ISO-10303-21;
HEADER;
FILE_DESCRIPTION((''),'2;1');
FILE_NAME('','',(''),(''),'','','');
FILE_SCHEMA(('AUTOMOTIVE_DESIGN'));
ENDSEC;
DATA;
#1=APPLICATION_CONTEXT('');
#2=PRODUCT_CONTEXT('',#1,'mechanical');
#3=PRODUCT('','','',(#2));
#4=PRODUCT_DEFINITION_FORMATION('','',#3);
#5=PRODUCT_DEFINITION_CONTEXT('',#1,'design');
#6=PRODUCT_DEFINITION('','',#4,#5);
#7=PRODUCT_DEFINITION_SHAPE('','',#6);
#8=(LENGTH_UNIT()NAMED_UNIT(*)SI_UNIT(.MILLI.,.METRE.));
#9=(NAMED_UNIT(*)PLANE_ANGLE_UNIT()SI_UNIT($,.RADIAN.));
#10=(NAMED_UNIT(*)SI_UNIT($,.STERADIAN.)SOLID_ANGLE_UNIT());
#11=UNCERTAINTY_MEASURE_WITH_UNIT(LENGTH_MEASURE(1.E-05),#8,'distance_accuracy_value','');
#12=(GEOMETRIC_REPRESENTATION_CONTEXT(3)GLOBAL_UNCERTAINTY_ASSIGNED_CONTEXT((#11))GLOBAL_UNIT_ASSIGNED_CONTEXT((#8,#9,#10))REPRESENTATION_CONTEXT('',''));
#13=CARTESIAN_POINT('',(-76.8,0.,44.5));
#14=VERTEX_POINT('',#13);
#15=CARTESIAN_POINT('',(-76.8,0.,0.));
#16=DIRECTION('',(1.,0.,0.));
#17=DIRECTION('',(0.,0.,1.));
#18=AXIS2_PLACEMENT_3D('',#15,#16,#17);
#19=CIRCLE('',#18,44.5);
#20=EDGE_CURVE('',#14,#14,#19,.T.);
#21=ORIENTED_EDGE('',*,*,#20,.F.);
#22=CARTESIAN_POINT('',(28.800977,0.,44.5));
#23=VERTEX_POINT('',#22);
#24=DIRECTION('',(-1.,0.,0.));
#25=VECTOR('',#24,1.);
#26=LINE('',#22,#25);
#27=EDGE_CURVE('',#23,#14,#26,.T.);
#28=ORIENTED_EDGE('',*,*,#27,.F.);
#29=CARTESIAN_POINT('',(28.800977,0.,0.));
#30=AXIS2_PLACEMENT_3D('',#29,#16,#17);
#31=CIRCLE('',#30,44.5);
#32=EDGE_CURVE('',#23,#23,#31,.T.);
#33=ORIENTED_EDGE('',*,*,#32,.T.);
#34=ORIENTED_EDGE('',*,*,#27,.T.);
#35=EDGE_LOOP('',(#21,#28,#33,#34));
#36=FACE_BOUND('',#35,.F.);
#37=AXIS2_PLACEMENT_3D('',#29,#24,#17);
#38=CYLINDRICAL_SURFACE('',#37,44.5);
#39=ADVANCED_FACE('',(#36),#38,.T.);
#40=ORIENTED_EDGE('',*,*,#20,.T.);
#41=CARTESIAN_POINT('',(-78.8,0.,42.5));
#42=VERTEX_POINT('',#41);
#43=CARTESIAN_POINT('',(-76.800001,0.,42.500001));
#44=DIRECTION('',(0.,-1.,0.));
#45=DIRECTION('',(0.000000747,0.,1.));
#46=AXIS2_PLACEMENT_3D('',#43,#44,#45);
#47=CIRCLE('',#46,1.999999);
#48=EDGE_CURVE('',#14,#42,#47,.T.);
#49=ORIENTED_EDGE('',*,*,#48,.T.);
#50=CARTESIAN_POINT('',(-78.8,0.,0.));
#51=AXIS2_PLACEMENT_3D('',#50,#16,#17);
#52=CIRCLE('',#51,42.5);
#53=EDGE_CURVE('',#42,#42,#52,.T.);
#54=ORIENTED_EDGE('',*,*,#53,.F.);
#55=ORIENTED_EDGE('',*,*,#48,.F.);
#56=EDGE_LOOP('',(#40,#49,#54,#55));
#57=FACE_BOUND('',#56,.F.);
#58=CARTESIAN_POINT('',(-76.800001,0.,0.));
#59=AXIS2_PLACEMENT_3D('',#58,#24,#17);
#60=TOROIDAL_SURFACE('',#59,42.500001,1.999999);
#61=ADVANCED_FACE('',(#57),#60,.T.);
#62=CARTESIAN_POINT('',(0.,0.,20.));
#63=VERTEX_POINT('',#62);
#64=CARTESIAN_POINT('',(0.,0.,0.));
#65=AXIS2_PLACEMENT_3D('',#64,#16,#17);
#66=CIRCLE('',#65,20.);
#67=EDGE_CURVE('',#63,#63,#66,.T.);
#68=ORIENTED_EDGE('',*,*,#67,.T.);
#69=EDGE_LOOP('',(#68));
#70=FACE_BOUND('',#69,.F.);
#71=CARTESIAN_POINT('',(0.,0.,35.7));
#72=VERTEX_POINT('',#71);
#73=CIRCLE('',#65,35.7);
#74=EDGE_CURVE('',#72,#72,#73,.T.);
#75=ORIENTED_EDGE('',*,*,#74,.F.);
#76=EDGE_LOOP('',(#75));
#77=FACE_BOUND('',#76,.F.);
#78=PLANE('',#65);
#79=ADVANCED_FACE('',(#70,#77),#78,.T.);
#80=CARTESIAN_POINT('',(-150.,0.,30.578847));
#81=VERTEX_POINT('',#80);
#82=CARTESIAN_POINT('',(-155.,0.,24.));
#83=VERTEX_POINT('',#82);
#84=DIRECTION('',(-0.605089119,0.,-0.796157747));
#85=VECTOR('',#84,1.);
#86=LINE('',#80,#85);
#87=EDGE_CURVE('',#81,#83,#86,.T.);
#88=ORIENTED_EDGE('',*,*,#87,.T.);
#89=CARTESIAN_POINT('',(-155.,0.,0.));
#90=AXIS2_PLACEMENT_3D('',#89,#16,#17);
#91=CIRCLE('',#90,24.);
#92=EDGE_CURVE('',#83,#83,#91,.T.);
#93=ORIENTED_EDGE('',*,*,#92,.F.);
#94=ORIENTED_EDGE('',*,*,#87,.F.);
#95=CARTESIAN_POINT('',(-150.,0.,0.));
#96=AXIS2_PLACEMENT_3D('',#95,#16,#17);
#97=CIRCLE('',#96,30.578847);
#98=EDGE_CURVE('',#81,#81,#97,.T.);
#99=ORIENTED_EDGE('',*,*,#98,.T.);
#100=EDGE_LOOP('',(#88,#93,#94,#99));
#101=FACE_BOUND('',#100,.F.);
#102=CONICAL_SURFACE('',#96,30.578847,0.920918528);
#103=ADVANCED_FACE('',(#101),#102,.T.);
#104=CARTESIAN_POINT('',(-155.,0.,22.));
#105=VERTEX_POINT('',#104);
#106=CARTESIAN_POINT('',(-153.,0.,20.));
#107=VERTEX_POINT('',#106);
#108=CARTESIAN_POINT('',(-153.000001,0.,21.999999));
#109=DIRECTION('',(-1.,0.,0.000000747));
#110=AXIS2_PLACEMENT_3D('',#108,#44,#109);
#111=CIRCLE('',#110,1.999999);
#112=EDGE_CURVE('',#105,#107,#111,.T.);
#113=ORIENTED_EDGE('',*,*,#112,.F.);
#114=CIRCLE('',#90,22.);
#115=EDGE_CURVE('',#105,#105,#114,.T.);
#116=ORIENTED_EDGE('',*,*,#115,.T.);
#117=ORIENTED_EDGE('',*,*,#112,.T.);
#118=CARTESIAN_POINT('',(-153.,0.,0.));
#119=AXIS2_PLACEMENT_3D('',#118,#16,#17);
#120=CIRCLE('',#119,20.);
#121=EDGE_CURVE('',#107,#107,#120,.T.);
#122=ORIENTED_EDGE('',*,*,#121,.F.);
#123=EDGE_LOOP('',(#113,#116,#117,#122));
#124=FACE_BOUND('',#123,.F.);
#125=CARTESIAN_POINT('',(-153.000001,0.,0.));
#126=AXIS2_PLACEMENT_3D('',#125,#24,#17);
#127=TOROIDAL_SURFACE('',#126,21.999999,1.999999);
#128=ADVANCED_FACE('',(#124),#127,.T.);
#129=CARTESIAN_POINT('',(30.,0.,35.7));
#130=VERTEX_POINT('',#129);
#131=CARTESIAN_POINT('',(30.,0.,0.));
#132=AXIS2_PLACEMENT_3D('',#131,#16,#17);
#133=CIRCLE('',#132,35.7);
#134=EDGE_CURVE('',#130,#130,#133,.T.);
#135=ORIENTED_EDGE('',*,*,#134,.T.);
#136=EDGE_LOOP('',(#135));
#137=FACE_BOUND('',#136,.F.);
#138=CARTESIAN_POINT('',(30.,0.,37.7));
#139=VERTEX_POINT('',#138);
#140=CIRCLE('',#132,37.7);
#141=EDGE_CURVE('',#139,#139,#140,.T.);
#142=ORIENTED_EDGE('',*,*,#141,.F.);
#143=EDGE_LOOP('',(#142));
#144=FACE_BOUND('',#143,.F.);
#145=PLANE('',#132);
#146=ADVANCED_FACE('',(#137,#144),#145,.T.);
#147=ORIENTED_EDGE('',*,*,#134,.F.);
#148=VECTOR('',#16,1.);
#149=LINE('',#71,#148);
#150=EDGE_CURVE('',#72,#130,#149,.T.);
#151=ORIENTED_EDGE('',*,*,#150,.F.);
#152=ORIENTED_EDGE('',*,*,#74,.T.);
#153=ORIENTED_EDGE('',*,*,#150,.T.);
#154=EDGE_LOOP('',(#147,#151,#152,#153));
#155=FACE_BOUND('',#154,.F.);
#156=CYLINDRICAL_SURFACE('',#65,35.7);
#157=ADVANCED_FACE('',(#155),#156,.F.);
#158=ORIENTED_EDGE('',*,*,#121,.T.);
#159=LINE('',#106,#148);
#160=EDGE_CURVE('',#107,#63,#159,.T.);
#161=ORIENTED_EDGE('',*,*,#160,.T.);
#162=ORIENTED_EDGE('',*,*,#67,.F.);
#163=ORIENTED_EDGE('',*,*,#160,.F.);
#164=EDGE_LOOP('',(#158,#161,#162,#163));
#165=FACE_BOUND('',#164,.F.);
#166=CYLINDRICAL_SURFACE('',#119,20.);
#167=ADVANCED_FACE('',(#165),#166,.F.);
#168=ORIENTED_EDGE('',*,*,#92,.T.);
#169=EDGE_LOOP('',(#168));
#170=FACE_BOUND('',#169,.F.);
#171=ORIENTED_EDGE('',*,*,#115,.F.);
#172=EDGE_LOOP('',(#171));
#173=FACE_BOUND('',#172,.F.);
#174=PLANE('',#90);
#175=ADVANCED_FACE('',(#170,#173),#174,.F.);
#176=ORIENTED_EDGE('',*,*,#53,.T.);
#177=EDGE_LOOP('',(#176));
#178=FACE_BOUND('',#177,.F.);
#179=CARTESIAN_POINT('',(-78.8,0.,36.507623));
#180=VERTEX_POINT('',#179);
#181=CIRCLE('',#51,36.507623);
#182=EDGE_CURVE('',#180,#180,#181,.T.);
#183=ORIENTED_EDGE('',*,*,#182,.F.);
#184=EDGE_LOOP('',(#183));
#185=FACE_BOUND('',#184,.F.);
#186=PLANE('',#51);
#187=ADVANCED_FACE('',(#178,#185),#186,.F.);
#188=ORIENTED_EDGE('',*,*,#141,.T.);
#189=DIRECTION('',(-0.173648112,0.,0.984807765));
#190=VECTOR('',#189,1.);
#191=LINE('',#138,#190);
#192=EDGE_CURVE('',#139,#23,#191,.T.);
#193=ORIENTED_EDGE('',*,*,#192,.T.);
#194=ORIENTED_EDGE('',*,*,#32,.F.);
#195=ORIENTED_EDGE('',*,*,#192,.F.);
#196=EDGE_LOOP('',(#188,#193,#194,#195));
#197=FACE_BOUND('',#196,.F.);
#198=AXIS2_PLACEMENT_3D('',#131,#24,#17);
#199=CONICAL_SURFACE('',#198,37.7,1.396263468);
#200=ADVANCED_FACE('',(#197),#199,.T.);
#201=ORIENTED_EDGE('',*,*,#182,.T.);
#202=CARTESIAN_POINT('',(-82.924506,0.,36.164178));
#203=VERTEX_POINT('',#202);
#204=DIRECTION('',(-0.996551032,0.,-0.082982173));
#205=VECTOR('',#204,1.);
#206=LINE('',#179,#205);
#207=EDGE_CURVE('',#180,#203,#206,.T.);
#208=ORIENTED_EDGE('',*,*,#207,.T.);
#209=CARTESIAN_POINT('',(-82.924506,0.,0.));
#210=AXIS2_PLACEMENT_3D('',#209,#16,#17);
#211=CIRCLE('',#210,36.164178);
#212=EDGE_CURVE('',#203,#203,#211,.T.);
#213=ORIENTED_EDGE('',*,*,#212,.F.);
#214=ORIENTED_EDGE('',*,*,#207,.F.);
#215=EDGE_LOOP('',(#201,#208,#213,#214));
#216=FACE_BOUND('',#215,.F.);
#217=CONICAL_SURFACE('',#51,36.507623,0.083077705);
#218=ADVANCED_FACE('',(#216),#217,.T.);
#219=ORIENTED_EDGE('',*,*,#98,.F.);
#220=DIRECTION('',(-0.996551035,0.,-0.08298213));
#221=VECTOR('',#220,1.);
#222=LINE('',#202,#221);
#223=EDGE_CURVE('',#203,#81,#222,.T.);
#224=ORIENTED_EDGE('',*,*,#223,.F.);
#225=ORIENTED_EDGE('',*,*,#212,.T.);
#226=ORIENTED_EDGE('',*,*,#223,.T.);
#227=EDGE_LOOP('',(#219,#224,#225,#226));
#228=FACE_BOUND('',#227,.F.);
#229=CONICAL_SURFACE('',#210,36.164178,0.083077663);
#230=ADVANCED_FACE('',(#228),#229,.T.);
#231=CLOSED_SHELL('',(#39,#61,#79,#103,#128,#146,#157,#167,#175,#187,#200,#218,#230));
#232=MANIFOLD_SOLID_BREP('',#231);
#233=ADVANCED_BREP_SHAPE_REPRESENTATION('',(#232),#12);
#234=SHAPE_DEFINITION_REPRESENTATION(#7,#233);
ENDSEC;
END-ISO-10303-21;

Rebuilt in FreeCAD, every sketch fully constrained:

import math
import FreeCAD as App
import Part
import Sketcher

V = App.Vector
Q = App.Units.Quantity

doc = App.newDocument("Part")
body = doc.addObject("PartDesign::Body", "Body")

# Sketch on XZ plane
sketch1 = doc.addObject("Sketcher::SketchObject", "Sketch")
body.addObject(sketch1)
sketch1.AttachmentSupport = (doc.XZ_Plane, [""])
sketch1.MapMode = "FlatFace"
sketch1.addGeometry([
    Part.LineSegment(V(-153, 20, 0), V(0, 20, 0)),  # 0
    Part.LineSegment(V(0, 20, 0), V(0, 35.7, 0)),  # 1
    Part.LineSegment(V(0, 35.7, 0), V(30, 35.7, 0)),  # 2
    Part.LineSegment(V(30, 35.7, 0), V(30, 37.7, 0)),  # 3
    Part.LineSegment(V(30, 37.7, 0), V(28.800977, 44.5, 0)),  # 4
    Part.LineSegment(V(28.800977, 44.5, 0), V(-76.8, 44.5, 0)),  # 5
    Part.ArcOfCircle(Part.Circle(V(-76.800001, 42.500001, 0), V(0, 0, 1), 1.999999), math.radians(89.999957), math.radians(180.000043)),  # 6
    Part.LineSegment(V(-78.8, 42.5, 0), V(-78.8, 36.507623, 0)),  # 7
    Part.LineSegment(V(-78.8, 36.507623, 0), V(-82.924506, 36.164178, 0)),  # 8
    Part.LineSegment(V(-82.924506, 36.164178, 0), V(-150, 30.578847, 0)),  # 9
    Part.LineSegment(V(-150, 30.578847, 0), V(-155, 24, 0)),  # 10
    Part.LineSegment(V(-155, 24, 0), V(-155, 22, 0)),  # 11
    Part.ArcOfCircle(Part.Circle(V(-153.000001, 21.999999, 0), V(0, 0, 1), 1.999999), math.radians(179.999957), math.radians(270.000043)),  # 12
], False)
sketch1.addConstraint([
    Sketcher.Constraint("Coincident", 0, 2, 1, 1),
    Sketcher.Constraint("Coincident", 1, 2, 2, 1),
    Sketcher.Constraint("Coincident", 2, 2, 3, 1),
    Sketcher.Constraint("Coincident", 3, 2, 4, 1),
    Sketcher.Constraint("Coincident", 4, 2, 5, 1),
    Sketcher.Constraint("Tangent", 5, 2, 6, 1),
    Sketcher.Constraint("Tangent", 6, 2, 7, 1),
    Sketcher.Constraint("Coincident", 7, 2, 8, 1),
    Sketcher.Constraint("Coincident", 8, 2, 9, 1),
    Sketcher.Constraint("Coincident", 9, 2, 10, 1),
    Sketcher.Constraint("Coincident", 10, 2, 11, 1),
    Sketcher.Constraint("Tangent", 11, 2, 12, 1),
    Sketcher.Constraint("Tangent", 12, 2, 0, 1),
    Sketcher.Constraint("Horizontal", 0),
    Sketcher.Constraint("Vertical", 1),
    Sketcher.Constraint("Horizontal", 2),
    Sketcher.Constraint("Vertical", 3),
    Sketcher.Constraint("Horizontal", 5),
    Sketcher.Constraint("Vertical", 7),
    Sketcher.Constraint("Vertical", 11),
    Sketcher.Constraint("Equal", 6, 12),
    Sketcher.Constraint("PointOnObject", 0, 2, -2),
    Sketcher.Constraint("Parallel", 8, 9),
    Sketcher.Constraint("Equal", 3, 11),
    Sketcher.Constraint("Radius", 6, Q("1.999999 mm")),
    Sketcher.Constraint("DistanceX", 0, 1, 0, 2, Q("153 mm")),
    Sketcher.Constraint("DistanceX", 2, 1, 2, 2, Q("30 mm")),
    Sketcher.Constraint("DistanceY", 3, 1, 3, 2, Q("2 mm")),
    Sketcher.Constraint("Angle", 4, Q("99.999996 deg")),
    Sketcher.Constraint("DistanceY", 1, 1, 1, 2, Q("15.7 mm")),
    Sketcher.Constraint("DistanceY", -1, 1, 12, 3, Q("21.999999 mm")),
    Sketcher.Constraint("DistanceX", 9, 2, -1, 1, Q("150 mm")),
    Sketcher.Constraint("DistanceX", 6, 3, -1, 1, Q("76.800001 mm")),
    Sketcher.Constraint("DistanceY", -1, 1, 6, 3, Q("42.500001 mm")),
    Sketcher.Constraint("Angle", 8, Q("-175.239998 deg")),
    Sketcher.Constraint("Distance", 8, Q("4.138781 mm")),
    Sketcher.Constraint("DistanceY", 7, 2, 7, 1, Q("5.992377 mm")),
])
revolution = doc.addObject("PartDesign::Revolution", "Revolution")
body.addObject(revolution)
revolution.Profile = sketch1
revolution.ReferenceAxis = (sketch1, ["H_Axis"])
revolution.Angle = 360

doc.recompute()
